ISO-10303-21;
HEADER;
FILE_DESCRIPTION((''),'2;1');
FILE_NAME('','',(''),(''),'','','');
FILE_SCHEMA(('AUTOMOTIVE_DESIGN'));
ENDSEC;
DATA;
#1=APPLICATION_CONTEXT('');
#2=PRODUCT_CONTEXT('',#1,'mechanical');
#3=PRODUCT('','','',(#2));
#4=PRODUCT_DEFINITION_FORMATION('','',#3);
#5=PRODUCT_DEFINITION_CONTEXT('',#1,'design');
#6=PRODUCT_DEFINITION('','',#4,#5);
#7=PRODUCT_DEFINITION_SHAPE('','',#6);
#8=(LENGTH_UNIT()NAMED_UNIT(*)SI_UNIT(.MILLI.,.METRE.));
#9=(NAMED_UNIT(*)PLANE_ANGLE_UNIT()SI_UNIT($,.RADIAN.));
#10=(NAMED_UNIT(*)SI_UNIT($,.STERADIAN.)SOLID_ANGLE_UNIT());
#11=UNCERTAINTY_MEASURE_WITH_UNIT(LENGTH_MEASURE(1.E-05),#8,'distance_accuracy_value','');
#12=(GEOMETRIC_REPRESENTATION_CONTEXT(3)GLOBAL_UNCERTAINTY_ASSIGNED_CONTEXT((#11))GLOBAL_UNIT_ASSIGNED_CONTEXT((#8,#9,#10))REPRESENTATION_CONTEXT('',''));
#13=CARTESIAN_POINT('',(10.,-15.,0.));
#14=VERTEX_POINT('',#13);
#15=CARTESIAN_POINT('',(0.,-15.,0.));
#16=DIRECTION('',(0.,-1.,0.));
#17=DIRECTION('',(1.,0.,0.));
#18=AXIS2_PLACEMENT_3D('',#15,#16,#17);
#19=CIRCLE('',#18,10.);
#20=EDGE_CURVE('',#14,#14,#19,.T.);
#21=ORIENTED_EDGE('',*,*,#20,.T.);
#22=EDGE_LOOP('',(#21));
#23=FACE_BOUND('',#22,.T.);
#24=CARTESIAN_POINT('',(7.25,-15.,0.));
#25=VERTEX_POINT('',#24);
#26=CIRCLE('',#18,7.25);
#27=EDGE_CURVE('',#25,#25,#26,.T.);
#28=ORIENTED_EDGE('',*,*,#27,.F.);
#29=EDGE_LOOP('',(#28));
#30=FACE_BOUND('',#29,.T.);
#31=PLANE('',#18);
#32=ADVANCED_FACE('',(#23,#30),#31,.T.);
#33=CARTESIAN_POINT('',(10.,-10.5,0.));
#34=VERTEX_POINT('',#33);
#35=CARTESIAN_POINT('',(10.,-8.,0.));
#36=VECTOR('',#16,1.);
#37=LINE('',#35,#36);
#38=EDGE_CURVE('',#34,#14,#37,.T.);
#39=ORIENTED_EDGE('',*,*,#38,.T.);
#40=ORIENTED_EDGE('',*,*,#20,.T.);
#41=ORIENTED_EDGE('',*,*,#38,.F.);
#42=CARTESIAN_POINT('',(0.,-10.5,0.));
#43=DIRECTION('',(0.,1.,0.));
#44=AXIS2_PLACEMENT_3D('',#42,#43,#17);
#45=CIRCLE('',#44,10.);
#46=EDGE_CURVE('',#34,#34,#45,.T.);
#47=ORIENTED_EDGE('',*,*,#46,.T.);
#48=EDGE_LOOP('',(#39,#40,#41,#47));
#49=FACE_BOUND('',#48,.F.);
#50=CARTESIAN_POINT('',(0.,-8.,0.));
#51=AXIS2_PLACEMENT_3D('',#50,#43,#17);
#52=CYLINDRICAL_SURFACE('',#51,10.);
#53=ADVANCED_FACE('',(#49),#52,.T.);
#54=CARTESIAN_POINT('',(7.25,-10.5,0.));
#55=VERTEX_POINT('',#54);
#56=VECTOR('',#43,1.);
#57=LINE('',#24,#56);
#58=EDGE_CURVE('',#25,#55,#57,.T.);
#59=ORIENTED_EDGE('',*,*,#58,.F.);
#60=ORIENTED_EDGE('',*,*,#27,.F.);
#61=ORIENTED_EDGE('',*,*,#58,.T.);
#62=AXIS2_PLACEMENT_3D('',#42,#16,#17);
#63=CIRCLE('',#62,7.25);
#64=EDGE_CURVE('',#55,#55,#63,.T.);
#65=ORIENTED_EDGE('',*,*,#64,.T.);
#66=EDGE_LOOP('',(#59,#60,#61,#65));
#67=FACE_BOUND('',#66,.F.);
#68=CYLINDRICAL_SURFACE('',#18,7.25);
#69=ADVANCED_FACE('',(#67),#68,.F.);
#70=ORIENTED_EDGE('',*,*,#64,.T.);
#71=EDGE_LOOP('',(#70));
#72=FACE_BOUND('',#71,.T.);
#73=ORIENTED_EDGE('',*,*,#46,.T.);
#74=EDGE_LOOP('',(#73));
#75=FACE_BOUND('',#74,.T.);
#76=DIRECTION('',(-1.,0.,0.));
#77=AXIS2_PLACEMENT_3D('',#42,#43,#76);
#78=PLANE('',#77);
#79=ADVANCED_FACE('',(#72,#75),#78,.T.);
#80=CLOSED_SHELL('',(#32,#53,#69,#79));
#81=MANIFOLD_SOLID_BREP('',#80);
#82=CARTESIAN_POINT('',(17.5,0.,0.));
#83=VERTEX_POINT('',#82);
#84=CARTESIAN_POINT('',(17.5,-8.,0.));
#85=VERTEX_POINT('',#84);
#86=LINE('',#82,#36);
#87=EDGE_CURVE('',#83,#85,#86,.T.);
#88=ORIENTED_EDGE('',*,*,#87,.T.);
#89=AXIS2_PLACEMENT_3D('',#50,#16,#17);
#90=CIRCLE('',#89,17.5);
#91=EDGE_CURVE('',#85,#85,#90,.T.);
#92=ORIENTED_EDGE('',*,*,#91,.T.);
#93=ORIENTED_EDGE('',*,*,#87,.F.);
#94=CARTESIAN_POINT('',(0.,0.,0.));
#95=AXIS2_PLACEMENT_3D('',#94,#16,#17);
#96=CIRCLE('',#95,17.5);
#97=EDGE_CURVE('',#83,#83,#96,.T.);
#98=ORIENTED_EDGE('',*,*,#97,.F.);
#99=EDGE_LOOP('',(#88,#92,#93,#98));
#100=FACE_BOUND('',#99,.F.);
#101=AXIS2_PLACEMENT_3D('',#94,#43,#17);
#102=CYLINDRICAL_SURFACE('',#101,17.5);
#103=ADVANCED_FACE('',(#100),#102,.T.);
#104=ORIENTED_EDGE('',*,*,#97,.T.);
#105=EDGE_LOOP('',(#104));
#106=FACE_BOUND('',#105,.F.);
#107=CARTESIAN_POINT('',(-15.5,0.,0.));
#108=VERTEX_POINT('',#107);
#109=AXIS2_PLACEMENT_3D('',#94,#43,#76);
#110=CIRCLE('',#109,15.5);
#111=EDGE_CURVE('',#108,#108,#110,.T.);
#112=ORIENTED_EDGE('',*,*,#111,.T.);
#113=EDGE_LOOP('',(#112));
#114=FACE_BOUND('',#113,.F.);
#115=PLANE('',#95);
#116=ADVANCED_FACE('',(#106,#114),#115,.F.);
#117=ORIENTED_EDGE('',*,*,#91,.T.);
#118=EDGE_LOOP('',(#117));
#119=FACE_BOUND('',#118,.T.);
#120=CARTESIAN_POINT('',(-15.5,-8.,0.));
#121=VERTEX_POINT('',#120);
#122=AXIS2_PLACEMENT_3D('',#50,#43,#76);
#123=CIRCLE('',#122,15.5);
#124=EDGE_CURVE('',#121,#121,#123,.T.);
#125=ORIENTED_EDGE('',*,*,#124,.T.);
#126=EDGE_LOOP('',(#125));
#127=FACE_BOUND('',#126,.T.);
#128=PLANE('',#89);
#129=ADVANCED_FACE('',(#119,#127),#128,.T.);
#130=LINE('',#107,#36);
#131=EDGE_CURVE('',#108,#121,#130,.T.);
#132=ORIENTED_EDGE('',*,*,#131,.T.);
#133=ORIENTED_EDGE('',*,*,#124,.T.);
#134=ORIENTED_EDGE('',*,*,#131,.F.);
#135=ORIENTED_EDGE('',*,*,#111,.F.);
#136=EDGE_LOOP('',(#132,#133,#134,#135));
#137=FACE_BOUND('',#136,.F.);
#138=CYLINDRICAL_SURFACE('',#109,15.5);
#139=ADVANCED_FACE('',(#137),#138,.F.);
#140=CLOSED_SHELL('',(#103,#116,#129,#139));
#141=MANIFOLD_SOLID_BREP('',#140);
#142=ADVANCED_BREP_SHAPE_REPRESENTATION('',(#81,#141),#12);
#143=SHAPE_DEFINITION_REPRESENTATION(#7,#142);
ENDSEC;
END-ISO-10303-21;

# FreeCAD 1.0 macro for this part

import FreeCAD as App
import Part
import Sketcher

V = App.Vector

doc = App.newDocument("Part")
body = doc.addObject("PartDesign::Body", "Body")
body.AllowCompound = True

sketch1 = body.newObject("Sketcher::SketchObject", "Sketch")
sketch1.AttachmentSupport = (doc.getObject("XZ_Plane"), [""])
sketch1.MapMode = "FlatFace"
sketch1.addGeometry(Part.Circle(V(0, 0, 0), V(0, 0, 1), 18), False)
sketch1.addConstraint([
    Sketcher.Constraint("Coincident", 0, 3, -1, 1),
    Sketcher.Constraint("Diameter", 0, 35.0),
])
pad1 = body.newObject("PartDesign::Pad", "Pad")
pad1.Profile = sketch1
pad1.Length = 8

sketch2 = body.newObject("Sketcher::SketchObject", "Sketch001")
sketch2.AttachmentSupport = (doc.getObject("XZ_Plane"), [""])
sketch2.MapMode = "FlatFace"
sketch2.AttachmentOffset = App.Placement(V(0, 0, 8), App.Rotation())
sketch2.addGeometry(Part.Circle(V(0, 0, 0), V(0, 0, 1), 10), False)
sketch2.addConstraint([
    Sketcher.Constraint("Coincident", 0, 3, -1, 1),
    Sketcher.Constraint("Diameter", 0, 20.0),
])
pad2 = body.newObject("PartDesign::Pad", "Pad001")
pad2.Profile = sketch2
pad2.Length = 7

sketch3 = body.newObject("Sketcher::SketchObject", "Sketch002")
sketch3.AttachmentSupport = (doc.getObject("XZ_Plane"), [""])
sketch3.MapMode = "FlatFace"
sketch3.AttachmentOffset = App.Placement(V(0, 0, 15), App.Rotation())
sketch3.addGeometry(Part.Circle(V(0, 0, 0), V(0, 0, 1), 7), False)
sketch3.addConstraint([
    Sketcher.Constraint("Coincident", 0, 3, -1, 1),
    Sketcher.Constraint("Diameter", 0, 14.5),
])
pocket1 = body.newObject("PartDesign::Pocket", "Pocket")
pocket1.Profile = sketch3
pocket1.Length = 25

sketch4 = body.newObject("Sketcher::SketchObject", "Sketch003")
sketch4.AttachmentSupport = (doc.getObject("XZ_Plane"), [""])
sketch4.MapMode = "FlatFace"
sketch4.addGeometry(Part.Circle(V(0, 0, 0), V(0, 0, 1), 16), False)
sketch4.addConstraint([
    Sketcher.Constraint("Coincident", 0, 3, -1, 1),
    Sketcher.Constraint("Diameter", 0, 31.0),
])
pocket2 = body.newObject("PartDesign::Pocket", "Pocket001")
pocket2.Profile = sketch4
pocket2.Length = 10.5
pocket2.Reversed = True

doc.recompute()
